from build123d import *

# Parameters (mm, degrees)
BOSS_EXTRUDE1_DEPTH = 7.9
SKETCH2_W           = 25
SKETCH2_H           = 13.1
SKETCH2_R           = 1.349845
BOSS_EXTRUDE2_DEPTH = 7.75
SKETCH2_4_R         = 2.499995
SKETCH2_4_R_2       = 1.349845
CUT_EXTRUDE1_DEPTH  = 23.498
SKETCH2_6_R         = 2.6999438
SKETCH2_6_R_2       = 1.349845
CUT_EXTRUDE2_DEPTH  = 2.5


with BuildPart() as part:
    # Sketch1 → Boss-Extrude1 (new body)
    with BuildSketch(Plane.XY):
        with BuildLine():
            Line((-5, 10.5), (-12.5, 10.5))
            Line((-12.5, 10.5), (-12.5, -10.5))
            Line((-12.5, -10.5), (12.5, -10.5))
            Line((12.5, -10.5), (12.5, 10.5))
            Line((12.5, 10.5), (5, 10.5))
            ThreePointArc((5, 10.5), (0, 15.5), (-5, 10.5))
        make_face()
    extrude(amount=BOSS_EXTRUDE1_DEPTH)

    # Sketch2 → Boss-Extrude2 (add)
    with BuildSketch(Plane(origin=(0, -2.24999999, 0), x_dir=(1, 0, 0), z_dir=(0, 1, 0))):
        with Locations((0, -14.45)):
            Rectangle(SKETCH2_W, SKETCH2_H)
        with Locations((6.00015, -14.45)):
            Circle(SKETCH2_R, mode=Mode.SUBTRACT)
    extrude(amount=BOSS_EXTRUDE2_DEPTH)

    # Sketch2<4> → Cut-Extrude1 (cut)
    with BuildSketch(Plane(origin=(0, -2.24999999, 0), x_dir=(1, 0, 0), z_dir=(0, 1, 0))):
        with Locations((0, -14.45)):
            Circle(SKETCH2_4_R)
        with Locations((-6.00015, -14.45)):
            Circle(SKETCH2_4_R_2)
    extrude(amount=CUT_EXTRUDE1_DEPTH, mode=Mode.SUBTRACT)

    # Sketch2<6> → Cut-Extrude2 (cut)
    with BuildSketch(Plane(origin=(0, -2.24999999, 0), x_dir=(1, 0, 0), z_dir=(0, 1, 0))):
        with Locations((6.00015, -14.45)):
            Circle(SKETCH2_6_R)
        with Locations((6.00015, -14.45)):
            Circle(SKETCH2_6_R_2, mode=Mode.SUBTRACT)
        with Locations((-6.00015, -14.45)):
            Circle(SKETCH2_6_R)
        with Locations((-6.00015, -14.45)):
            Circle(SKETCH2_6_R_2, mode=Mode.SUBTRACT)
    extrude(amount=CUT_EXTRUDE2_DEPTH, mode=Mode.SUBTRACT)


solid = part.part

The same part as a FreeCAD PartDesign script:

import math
import FreeCAD as App
import Part
import Sketcher

V = App.Vector
Q = App.Units.Quantity


def add_polygon(sketch, points):
    """Adds a closed chain of lines whose ends are joined by coincident constraints."""
    first, n = sketch.GeometryCount, len(points)
    for a, b in zip(points, points[1:] + points[:1]):
        sketch.addGeometry(Part.LineSegment(App.Vector(*a, 0), App.Vector(*b, 0)), False)
    for i in range(n):
        sketch.addConstraint(Sketcher.Constraint("Coincident", first + i, 2, first + (i + 1) % n, 1))

doc = App.newDocument("Part")
body = doc.addObject("PartDesign::Body", "Body")

# Sketch on XY plane
sketch1 = body.newObject("Sketcher::SketchObject", "Sketch")
sketch1.AttachmentSupport = (doc.getObject("XY_Plane"), [""])
sketch1.MapMode = "FlatFace"
sketch1.addGeometry([
    Part.LineSegment(V(-5, 10, 0), V(-12, 10, 0)),  # 0
    Part.LineSegment(V(-12, 10, 0), V(-12, -10, 0)),  # 1
    Part.LineSegment(V(-12, -10, 0), V(12, -10, 0)),  # 2
    Part.LineSegment(V(12, -10, 0), V(12, 10, 0)),  # 3
    Part.LineSegment(V(12, 10, 0), V(5, 10, 0)),  # 4
    Part.ArcOfCircle(Part.Circle(V(0, 10, 0), V(0, 0, 1), 5), math.radians(0), math.radians(180)),  # 5
], False)
sketch1.addConstraint([
    Sketcher.Constraint("Coincident", 0, 2, 1, 1),
    Sketcher.Constraint("Coincident", 1, 2, 2, 1),
    Sketcher.Constraint("Coincident", 2, 2, 3, 1),
    Sketcher.Constraint("Coincident", 3, 2, 4, 1),
    Sketcher.Constraint("Coincident", 4, 2, 5, 1),
    Sketcher.Constraint("Coincident", 5, 2, 0, 1),
    Sketcher.Constraint("Horizontal", 0),
    Sketcher.Constraint("Vertical", 1),
    Sketcher.Constraint("Horizontal", 2),
    Sketcher.Constraint("Vertical", 3),
    Sketcher.Constraint("Horizontal", 4),
    Sketcher.Constraint("Symmetric", 0, 2, 2, 2, -1, 1),
    Sketcher.Constraint("Symmetric", 4, 2, 5, 2, -2),
    Sketcher.Constraint("Horizontal", 5, 3, 0, 2),
    Sketcher.Constraint("Radius", 5, Q("5 mm")),
    Sketcher.Constraint("DistanceX", 2, 1, 2, 2, Q("25 mm")),
    Sketcher.Constraint("DistanceY", 1, 2, 1, 1, Q("21 mm")),
])
pad1 = body.newObject("PartDesign::Pad", "Pad")
pad1.Profile = sketch1
pad1.Length = 7.9

# Sketch on XZ plane
sketch2 = body.newObject("Sketcher::SketchObject", "Sketch001")
sketch2.AttachmentSupport = (doc.getObject("XZ_Plane"), [""])
sketch2.MapMode = "FlatFace"
sketch2.AttachmentOffset = App.Placement(V(0, 0, 2.25), App.Rotation())
add_polygon(sketch2, [(-12.5, 7.9), (-12.5, 21), (12.5, 21), (12.5, 7.9)])  # lines 0-3
sketch2.addGeometry(Part.Circle(V(6, 14.4, 0), V(0, 0, 1), 1.3), False)  # 4
sketch2.addConstraint([
    Sketcher.Constraint("Vertical", 0),
    Sketcher.Constraint("Horizontal", 1),
    Sketcher.Constraint("Vertical", 2),
    Sketcher.Constraint("Horizontal", 3),
    Sketcher.Constraint("DistanceX", 1, 1, 1, 2, Q("25 mm")),
    Sketcher.Constraint("DistanceY", 0, 1, 0, 2, Q("13.1 mm")),
    Sketcher.Constraint("DistanceY", -1, 1, 0, 2, Q("21 mm")),
    Sketcher.Constraint("DistanceX", 0, 2, -1, 1, Q("12.5 mm")),
    Sketcher.Constraint("Diameter", 4, Q("2.69969 mm")),
    Sketcher.Constraint("DistanceY", -1, 1, 4, 3, Q("14.45 mm")),
    Sketcher.Constraint("DistanceX", -1, 1, 4, 3, Q("6.00015 mm")),
])
pad2 = body.newObject("PartDesign::Pad", "Pad001")
pad2.Profile = sketch2
pad2.Length = 7.75
pad2.Reversed = True

# Sketch on XZ plane
sketch3 = body.newObject("Sketcher::SketchObject", "Sketch002")
sketch3.AttachmentSupport = (doc.getObject("XZ_Plane"), [""])
sketch3.MapMode = "FlatFace"
sketch3.AttachmentOffset = App.Placement(V(0, 0, 2.25), App.Rotation())
sketch3.addGeometry([
    Part.Circle(V(0, 14.4, 0), V(0, 0, 1), 2.5),
    Part.Circle(V(-6, 14.4, 0), V(0, 0, 1), 1.3),
], False)
sketch3.addConstraint([
    Sketcher.Constraint("PointOnObject", 0, 3, -2),
    Sketcher.Constraint("Horizontal", 0, 3, 1, 3),
    Sketcher.Constraint("Diameter", 0, Q("4.99999 mm")),
    Sketcher.Constraint("Diameter", 1, Q("2.69969 mm")),
    Sketcher.Constraint("DistanceY", -1, 1, 0, 3, Q("14.45 mm")),
    Sketcher.Constraint("DistanceX", 1, 3, -1, 1, Q("6.00015 mm")),
])
pocket1 = body.newObject("PartDesign::Pocket", "Pocket")
pocket1.Profile = sketch3
pocket1.Length = 23.498

# Sketch on XZ plane
sketch4 = body.newObject("Sketcher::SketchObject", "Sketch003")
sketch4.AttachmentSupport = (doc.getObject("XZ_Plane"), [""])
sketch4.MapMode = "FlatFace"
sketch4.AttachmentOffset = App.Placement(V(0, 0, 2.25), App.Rotation())
sketch4.addGeometry([
    Part.Circle(V(6, 14.4, 0), V(0, 0, 1), 2.7),
    Part.Circle(V(6, 14.4, 0), V(0, 0, 1), 1.3),
    Part.Circle(V(-6, 14.4, 0), V(0, 0, 1), 2.7),
    Part.Circle(V(-6, 14.4, 0), V(0, 0, 1), 1.3),
], False)
sketch4.addConstraint([
    Sketcher.Constraint("Coincident", 1, 3, 0, 3),
    Sketcher.Constraint("Coincident", 3, 3, 2, 3),
    Sketcher.Constraint("Equal", 0, 2),
    Sketcher.Constraint("Equal", 1, 3),
    Sketcher.Constraint("Symmetric", 0, 3, 2, 3, -2),
    Sketcher.Constraint("Diameter", 1, Q("2.69969 mm")),
    Sketcher.Constraint("DistanceY", -1, 1, 0, 3, Q("14.45 mm")),
    Sketcher.Constraint("Diameter", 0, Q("5.399888 mm")),
    Sketcher.Constraint("DistanceX", 2, 3, 0, 3, Q("12.0003 mm")),
])
pocket2 = body.newObject("PartDesign::Pocket", "Pocket001")
pocket2.Profile = sketch4
pocket2.Length = 2.5

doc.recompute()
